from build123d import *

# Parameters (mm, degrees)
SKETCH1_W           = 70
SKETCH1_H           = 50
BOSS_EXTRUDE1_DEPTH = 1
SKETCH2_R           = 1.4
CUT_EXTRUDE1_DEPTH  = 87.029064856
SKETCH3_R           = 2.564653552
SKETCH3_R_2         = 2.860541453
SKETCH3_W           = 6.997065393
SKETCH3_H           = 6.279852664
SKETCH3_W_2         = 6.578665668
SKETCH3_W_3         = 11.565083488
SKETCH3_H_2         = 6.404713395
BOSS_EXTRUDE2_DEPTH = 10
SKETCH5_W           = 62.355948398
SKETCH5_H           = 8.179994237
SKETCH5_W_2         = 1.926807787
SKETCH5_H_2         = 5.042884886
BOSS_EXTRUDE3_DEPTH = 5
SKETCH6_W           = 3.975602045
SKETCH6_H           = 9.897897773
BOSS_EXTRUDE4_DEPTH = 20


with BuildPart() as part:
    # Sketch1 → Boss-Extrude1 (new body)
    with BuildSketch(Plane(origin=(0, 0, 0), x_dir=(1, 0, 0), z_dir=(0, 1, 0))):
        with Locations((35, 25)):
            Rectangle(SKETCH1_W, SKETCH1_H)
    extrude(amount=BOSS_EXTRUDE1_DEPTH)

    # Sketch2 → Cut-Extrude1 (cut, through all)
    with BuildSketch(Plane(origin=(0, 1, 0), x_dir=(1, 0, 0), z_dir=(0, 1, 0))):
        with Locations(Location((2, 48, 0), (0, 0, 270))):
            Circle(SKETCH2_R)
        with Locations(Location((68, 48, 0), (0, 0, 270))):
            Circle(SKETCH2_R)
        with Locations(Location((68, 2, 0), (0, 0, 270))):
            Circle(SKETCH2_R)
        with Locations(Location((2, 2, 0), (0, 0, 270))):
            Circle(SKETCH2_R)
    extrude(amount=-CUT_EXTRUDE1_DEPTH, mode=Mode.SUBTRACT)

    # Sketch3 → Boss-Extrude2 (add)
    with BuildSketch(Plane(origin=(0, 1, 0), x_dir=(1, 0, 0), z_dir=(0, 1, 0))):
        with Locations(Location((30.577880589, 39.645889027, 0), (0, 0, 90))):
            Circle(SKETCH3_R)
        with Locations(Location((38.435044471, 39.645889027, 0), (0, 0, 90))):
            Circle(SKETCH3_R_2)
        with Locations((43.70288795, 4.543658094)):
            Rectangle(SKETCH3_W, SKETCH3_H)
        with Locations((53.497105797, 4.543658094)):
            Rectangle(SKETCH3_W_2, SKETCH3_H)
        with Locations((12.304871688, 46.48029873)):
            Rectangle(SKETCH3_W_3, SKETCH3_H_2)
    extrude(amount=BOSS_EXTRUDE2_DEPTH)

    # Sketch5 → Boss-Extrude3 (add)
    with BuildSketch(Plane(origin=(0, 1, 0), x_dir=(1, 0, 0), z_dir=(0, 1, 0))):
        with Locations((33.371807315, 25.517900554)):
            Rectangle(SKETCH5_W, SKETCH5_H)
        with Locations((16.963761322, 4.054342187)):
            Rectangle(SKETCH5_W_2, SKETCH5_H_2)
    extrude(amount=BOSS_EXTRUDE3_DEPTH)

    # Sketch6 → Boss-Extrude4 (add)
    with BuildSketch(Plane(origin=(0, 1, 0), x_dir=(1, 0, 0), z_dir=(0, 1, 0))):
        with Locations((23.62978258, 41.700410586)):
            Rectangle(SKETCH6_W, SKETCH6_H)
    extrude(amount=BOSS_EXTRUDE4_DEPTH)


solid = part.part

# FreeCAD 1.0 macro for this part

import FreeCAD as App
import Part
import Sketcher
from FreeCAD import Vector

doc = App.newDocument("Part")
body = doc.addObject("PartDesign::Body", "Body")

# Sketch on XZ plane
sketch1 = body.newObject("Sketcher::SketchObject", "Sketch")
sketch1.AttachmentSupport = (doc.getObject("XZ_Plane"), [""])
sketch1.MapMode = "FlatFace"
sketch1.addGeometry([
    Part.LineSegment(Vector(0, -50, 0), Vector(0, 0, 0)),
    Part.LineSegment(Vector(0, 0, 0), Vector(70, 0, 0)),
    Part.LineSegment(Vector(70, 0, 0), Vector(70, -50, 0)),
    Part.LineSegment(Vector(70, -50, 0), Vector(0, -50, 0)),
], False)
sketch1.addConstraint([
    Sketcher.Constraint("Coincident", 0, 2, 1, 1),
    Sketcher.Constraint("Coincident", 1, 2, 2, 1),
    Sketcher.Constraint("Coincident", 2, 2, 3, 1),
    Sketcher.Constraint("Coincident", 3, 2, 0, 1),
    Sketcher.Constraint("Vertical", 0),
    Sketcher.Constraint("Horizontal", 1),
    Sketcher.Constraint("Vertical", 2),
    Sketcher.Constraint("Horizontal", 3),
    Sketcher.Constraint("Coincident", 0, 2, -1, 1),
    Sketcher.Constraint("DistanceX", 1, 1, 1, 2, 70.0),
    Sketcher.Constraint("DistanceY", 0, 1, 0, 2, 50.0),
])
pad1 = body.newObject("PartDesign::Pad", "Pad")
pad1.Profile = sketch1
pad1.Length = 1
pad1.Reversed = True

# Sketch on XZ plane
sketch2 = body.newObject("Sketcher::SketchObject", "Sketch001")
sketch2.AttachmentSupport = (doc.getObject("XZ_Plane"), [""])
sketch2.MapMode = "FlatFace"
sketch2.AttachmentOffset = App.Placement(Vector(0, 0, -1), App.Rotation())
sketch2.addGeometry([
    Part.Circle(Vector(2, -48, 0), Vector(0, 0, 1), 1.4),
    Part.Circle(Vector(68, -48, 0), Vector(0, 0, 1), 1.4),
    Part.Circle(Vector(68, -2, 0), Vector(0, 0, 1), 1.4),
    Part.Circle(Vector(2, -2, 0), Vector(0, 0, 1), 1.4),
], False)
sketch2.addConstraint([
    Sketcher.Constraint("Equal", 0, 1),
    Sketcher.Constraint("Equal", 1, 2),
    Sketcher.Constraint("Equal", 2, 3),
    Sketcher.Constraint("Horizontal", 0, 3, 1, 3),
    Sketcher.Constraint("Horizontal", 2, 3, 3, 3),
    Sketcher.Constraint("Vertical", 1, 3, 2, 3),
    Sketcher.Constraint("Vertical", 0, 3, 3, 3),
    Sketcher.Constraint("Diameter", 0, 2.8),
    Sketcher.Constraint("DistanceX", -1, 1, 0, 3, 2.0),
    Sketcher.Constraint("DistanceY", 0, 3, -1, 1, 48.0),
    Sketcher.Constraint("DistanceX", -1, 1, 1, 3, 68.0),
    Sketcher.Constraint("DistanceY", 2, 3, -1, 1, 2.0),
])
pocket1 = body.newObject("PartDesign::Pocket", "Pocket")
pocket1.Profile = sketch2
pocket1.Type = "ThroughAll"
pocket1.Reversed = True

# Sketch on XZ plane
sketch3 = body.newObject("Sketcher::SketchObject", "Sketch002")
sketch3.AttachmentSupport = (doc.getObject("XZ_Plane"), [""])
sketch3.MapMode = "FlatFace"
sketch3.AttachmentOffset = App.Placement(Vector(0, 0, -1), App.Rotation())
sketch3.addGeometry([
    Part.Circle(Vector(30.6, -39.6, 0), Vector(0, 0, 1), 2.6),  # 0
    Part.Circle(Vector(38.4, -39.6, 0), Vector(0, 0, 1), 2.9),  # 1
    Part.LineSegment(Vector(40.2, -7.7, 0), Vector(40.2, -1.4, 0)),  # 2
    Part.LineSegment(Vector(40.2, -1.4, 0), Vector(47.2, -1.4, 0)),  # 3
    Part.LineSegment(Vector(47.2, -1.4, 0), Vector(47.2, -7.7, 0)),  # 4
    Part.LineSegment(Vector(47.2, -7.7, 0), Vector(40.2, -7.7, 0)),  # 5
    Part.LineSegment(Vector(50.2, -7.7, 0), Vector(50.2, -1.4, 0)),  # 6
    Part.LineSegment(Vector(50.2, -1.4, 0), Vector(56.8, -1.4, 0)),  # 7
    Part.LineSegment(Vector(56.8, -1.4, 0), Vector(56.8, -7.7, 0)),  # 8
    Part.LineSegment(Vector(56.8, -7.7, 0), Vector(50.2, -7.7, 0)),  # 9
    Part.LineSegment(Vector(6.5, -49.7, 0), Vector(6.5, -43.3, 0)),  # 10
    Part.LineSegment(Vector(6.5, -43.3, 0), Vector(18.1, -43.3, 0)),  # 11
    Part.LineSegment(Vector(18.1, -43.3, 0), Vector(18.1, -49.7, 0)),  # 12
    Part.LineSegment(Vector(18.1, -49.7, 0), Vector(6.5, -49.7, 0)),  # 13
], False)
sketch3.addConstraint([
    Sketcher.Constraint("Coincident", 2, 2, 3, 1),
    Sketcher.Constraint("Coincident", 3, 2, 4, 1),
    Sketcher.Constraint("Coincident", 4, 2, 5, 1),
    Sketcher.Constraint("Coincident", 5, 2, 2, 1),
    Sketcher.Constraint("Coincident", 6, 2, 7, 1),
    Sketcher.Constraint("Coincident", 7, 2, 8, 1),
    Sketcher.Constraint("Coincident", 8, 2, 9, 1),
    Sketcher.Constraint("Coincident", 9, 2, 6, 1),
    Sketcher.Constraint("Coincident", 10, 2, 11, 1),
    Sketcher.Constraint("Coincident", 11, 2, 12, 1),
    Sketcher.Constraint("Coincident", 12, 2, 13, 1),
    Sketcher.Constraint("Coincident", 13, 2, 10, 1),
    Sketcher.Constraint("Vertical", 2),
    Sketcher.Constraint("Horizontal", 3),
    Sketcher.Constraint("Vertical", 4),
    Sketcher.Constraint("Horizontal", 5),
    Sketcher.Constraint("Vertical", 6),
    Sketcher.Constraint("Horizontal", 7),
    Sketcher.Constraint("Vertical", 8),
    Sketcher.Constraint("Horizontal", 9),
    Sketcher.Constraint("Vertical", 10),
    Sketcher.Constraint("Horizontal", 11),
    Sketcher.Constraint("Vertical", 12),
    Sketcher.Constraint("Horizontal", 13),
    Sketcher.Constraint("Horizontal", 0, 3, 1, 3),
    Sketcher.Constraint("Horizontal", 3, 2, 6, 2),
    Sketcher.Constraint("Horizontal", 5, 2, 8, 2),
    Sketcher.Constraint("Diameter", 0, 5.129307),
    Sketcher.Constraint("Diameter", 1, 5.721083),
    Sketcher.Constraint("DistanceX", 3, 1, 3, 2, 6.997065),
    Sketcher.Constraint("DistanceX", 7, 1, 7, 2, 6.578666),
    Sketcher.Constraint("DistanceX", 11, 1, 11, 2, 11.565083),
    Sketcher.Constraint("DistanceY", 2, 1, 2, 2, 6.279853),
    Sketcher.Constraint("DistanceY", 10, 1, 10, 2, 6.404713),
    Sketcher.Constraint("DistanceX", -1, 1, 0, 3, 30.577881),
    Sketcher.Constraint("DistanceY", 0, 3, -1, 1, 39.645889),
    Sketcher.Constraint("DistanceY", 2, 2, -1, 1, 1.403732),
    Sketcher.Constraint("DistanceX", -1, 1, 3, 2, 47.201421),
    Sketcher.Constraint("DistanceX", -1, 1, 7, 2, 56.786439),
    Sketcher.Constraint("DistanceX", -1, 1, 10, 2, 6.52233),
    Sketcher.Constraint("DistanceX", 1, 3, 2, 2, 1.769311),
    Sketcher.Constraint("DistanceY", 10, 2, 2, 2, 41.87421),
])
pad2 = body.newObject("PartDesign::Pad", "Pad001")
pad2.Profile = sketch3
pad2.Length = 10
pad2.Reversed = True

# Sketch on XZ plane
sketch4 = body.newObject("Sketcher::SketchObject", "Sketch003")
sketch4.AttachmentSupport = (doc.getObject("XZ_Plane"), [""])
sketch4.MapMode = "FlatFace"
sketch4.AttachmentOffset = App.Placement(Vector(0, 0, -1), App.Rotation())
sketch4.addGeometry([
    Part.LineSegment(Vector(2.2, -29.6, 0), Vector(2.2, -21.4, 0)),  # 0
    Part.LineSegment(Vector(2.2, -21.4, 0), Vector(64.5, -21.4, 0)),  # 1
    Part.LineSegment(Vector(64.5, -21.4, 0), Vector(64.5, -29.6, 0)),  # 2
    Part.LineSegment(Vector(64.5, -29.6, 0), Vector(2.2, -29.6, 0)),  # 3
    Part.LineSegment(Vector(16, -6.6, 0), Vector(16, -1.5, 0)),  # 4
    Part.LineSegment(Vector(16, -1.5, 0), Vector(17.9, -1.5, 0)),  # 5
    Part.LineSegment(Vector(17.9, -1.5, 0), Vector(17.9, -6.6, 0)),  # 6
    Part.LineSegment(Vector(17.9, -6.6, 0), Vector(16, -6.6, 0)),  # 7
], False)
sketch4.addConstraint([
    Sketcher.Constraint("Coincident", 0, 2, 1, 1),
    Sketcher.Constraint("Coincident", 1, 2, 2, 1),
    Sketcher.Constraint("Coincident", 2, 2, 3, 1),
    Sketcher.Constraint("Coincident", 3, 2, 0, 1),
    Sketcher.Constraint("Coincident", 4, 2, 5, 1),
    Sketcher.Constraint("Coincident", 5, 2, 6, 1),
    Sketcher.Constraint("Coincident", 6, 2, 7, 1),
    Sketcher.Constraint("Coincident", 7, 2, 4, 1),
    Sketcher.Constraint("Vertical", 0),
    Sketcher.Constraint("Horizontal", 1),
    Sketcher.Constraint("Vertical", 2),
    Sketcher.Constraint("Horizontal", 3),
    Sketcher.Constraint("Vertical", 4),
    Sketcher.Constraint("Horizontal", 5),
    Sketcher.Constraint("Vertical", 6),
    Sketcher.Constraint("Horizontal", 7),
    Sketcher.Constraint("DistanceX", 1, 1, 1, 2, 62.355948),
    Sketcher.Constraint("DistanceY", 4, 2, -1, 1, 1.5329),
    Sketcher.Constraint("DistanceX", 5, 1, 5, 2, 1.926808),
    Sketcher.Constraint("DistanceY", 0, 1, 0, 2, 8.179994),
    Sketcher.Constraint("DistanceY", 4, 1, 4, 2, 5.042885),
    Sketcher.Constraint("DistanceX", -1, 1, 1, 2, 64.549782),
    Sketcher.Constraint("DistanceY", 0, 2, 6, 2, 14.852119),
    Sketcher.Constraint("DistanceX", -1, 1, 4, 2, 16.000357),
])
pad3 = body.newObject("PartDesign::Pad", "Pad002")
pad3.Profile = sketch4
pad3.Length = 5
pad3.Reversed = True

# Sketch on XZ plane
sketch5 = body.newObject("Sketcher::SketchObject", "Sketch004")
sketch5.AttachmentSupport = (doc.getObject("XZ_Plane"), [""])
sketch5.MapMode = "FlatFace"
sketch5.AttachmentOffset = App.Placement(Vector(0, 0, -1), App.Rotation())
sketch5.addGeometry([
    Part.LineSegment(Vector(21.6, -46.6, 0), Vector(21.6, -36.8, 0)),
    Part.LineSegment(Vector(21.6, -36.8, 0), Vector(25.6, -36.8, 0)),
    Part.LineSegment(Vector(25.6, -36.8, 0), Vector(25.6, -46.6, 0)),
    Part.LineSegment(Vector(25.6, -46.6, 0), Vector(21.6, -46.6, 0)),
], False)
sketch5.addConstraint([
    Sketcher.Constraint("Coincident", 0, 2, 1, 1),
    Sketcher.Constraint("Coincident", 1, 2, 2, 1),
    Sketcher.Constraint("Coincident", 2, 2, 3, 1),
    Sketcher.Constraint("Coincident", 3, 2, 0, 1),
    Sketcher.Constraint("Vertical", 0),
    Sketcher.Constraint("Horizontal", 1),
    Sketcher.Constraint("Vertical", 2),
    Sketcher.Constraint("Horizontal", 3),
    Sketcher.Constraint("DistanceX", 1, 1, 1, 2, 3.975602),
    Sketcher.Constraint("DistanceY", 0, 1, 0, 2, 9.897898),
    Sketcher.Constraint("DistanceX", -1, 1, 0, 2, 21.641982),
    Sketcher.Constraint("DistanceY", 0, 2, -1, 1, 36.751462),
])
pad4 = body.newObject("PartDesign::Pad", "Pad003")
pad4.Profile = sketch5
pad4.Length = 20
pad4.Reversed = True

doc.recompute()
